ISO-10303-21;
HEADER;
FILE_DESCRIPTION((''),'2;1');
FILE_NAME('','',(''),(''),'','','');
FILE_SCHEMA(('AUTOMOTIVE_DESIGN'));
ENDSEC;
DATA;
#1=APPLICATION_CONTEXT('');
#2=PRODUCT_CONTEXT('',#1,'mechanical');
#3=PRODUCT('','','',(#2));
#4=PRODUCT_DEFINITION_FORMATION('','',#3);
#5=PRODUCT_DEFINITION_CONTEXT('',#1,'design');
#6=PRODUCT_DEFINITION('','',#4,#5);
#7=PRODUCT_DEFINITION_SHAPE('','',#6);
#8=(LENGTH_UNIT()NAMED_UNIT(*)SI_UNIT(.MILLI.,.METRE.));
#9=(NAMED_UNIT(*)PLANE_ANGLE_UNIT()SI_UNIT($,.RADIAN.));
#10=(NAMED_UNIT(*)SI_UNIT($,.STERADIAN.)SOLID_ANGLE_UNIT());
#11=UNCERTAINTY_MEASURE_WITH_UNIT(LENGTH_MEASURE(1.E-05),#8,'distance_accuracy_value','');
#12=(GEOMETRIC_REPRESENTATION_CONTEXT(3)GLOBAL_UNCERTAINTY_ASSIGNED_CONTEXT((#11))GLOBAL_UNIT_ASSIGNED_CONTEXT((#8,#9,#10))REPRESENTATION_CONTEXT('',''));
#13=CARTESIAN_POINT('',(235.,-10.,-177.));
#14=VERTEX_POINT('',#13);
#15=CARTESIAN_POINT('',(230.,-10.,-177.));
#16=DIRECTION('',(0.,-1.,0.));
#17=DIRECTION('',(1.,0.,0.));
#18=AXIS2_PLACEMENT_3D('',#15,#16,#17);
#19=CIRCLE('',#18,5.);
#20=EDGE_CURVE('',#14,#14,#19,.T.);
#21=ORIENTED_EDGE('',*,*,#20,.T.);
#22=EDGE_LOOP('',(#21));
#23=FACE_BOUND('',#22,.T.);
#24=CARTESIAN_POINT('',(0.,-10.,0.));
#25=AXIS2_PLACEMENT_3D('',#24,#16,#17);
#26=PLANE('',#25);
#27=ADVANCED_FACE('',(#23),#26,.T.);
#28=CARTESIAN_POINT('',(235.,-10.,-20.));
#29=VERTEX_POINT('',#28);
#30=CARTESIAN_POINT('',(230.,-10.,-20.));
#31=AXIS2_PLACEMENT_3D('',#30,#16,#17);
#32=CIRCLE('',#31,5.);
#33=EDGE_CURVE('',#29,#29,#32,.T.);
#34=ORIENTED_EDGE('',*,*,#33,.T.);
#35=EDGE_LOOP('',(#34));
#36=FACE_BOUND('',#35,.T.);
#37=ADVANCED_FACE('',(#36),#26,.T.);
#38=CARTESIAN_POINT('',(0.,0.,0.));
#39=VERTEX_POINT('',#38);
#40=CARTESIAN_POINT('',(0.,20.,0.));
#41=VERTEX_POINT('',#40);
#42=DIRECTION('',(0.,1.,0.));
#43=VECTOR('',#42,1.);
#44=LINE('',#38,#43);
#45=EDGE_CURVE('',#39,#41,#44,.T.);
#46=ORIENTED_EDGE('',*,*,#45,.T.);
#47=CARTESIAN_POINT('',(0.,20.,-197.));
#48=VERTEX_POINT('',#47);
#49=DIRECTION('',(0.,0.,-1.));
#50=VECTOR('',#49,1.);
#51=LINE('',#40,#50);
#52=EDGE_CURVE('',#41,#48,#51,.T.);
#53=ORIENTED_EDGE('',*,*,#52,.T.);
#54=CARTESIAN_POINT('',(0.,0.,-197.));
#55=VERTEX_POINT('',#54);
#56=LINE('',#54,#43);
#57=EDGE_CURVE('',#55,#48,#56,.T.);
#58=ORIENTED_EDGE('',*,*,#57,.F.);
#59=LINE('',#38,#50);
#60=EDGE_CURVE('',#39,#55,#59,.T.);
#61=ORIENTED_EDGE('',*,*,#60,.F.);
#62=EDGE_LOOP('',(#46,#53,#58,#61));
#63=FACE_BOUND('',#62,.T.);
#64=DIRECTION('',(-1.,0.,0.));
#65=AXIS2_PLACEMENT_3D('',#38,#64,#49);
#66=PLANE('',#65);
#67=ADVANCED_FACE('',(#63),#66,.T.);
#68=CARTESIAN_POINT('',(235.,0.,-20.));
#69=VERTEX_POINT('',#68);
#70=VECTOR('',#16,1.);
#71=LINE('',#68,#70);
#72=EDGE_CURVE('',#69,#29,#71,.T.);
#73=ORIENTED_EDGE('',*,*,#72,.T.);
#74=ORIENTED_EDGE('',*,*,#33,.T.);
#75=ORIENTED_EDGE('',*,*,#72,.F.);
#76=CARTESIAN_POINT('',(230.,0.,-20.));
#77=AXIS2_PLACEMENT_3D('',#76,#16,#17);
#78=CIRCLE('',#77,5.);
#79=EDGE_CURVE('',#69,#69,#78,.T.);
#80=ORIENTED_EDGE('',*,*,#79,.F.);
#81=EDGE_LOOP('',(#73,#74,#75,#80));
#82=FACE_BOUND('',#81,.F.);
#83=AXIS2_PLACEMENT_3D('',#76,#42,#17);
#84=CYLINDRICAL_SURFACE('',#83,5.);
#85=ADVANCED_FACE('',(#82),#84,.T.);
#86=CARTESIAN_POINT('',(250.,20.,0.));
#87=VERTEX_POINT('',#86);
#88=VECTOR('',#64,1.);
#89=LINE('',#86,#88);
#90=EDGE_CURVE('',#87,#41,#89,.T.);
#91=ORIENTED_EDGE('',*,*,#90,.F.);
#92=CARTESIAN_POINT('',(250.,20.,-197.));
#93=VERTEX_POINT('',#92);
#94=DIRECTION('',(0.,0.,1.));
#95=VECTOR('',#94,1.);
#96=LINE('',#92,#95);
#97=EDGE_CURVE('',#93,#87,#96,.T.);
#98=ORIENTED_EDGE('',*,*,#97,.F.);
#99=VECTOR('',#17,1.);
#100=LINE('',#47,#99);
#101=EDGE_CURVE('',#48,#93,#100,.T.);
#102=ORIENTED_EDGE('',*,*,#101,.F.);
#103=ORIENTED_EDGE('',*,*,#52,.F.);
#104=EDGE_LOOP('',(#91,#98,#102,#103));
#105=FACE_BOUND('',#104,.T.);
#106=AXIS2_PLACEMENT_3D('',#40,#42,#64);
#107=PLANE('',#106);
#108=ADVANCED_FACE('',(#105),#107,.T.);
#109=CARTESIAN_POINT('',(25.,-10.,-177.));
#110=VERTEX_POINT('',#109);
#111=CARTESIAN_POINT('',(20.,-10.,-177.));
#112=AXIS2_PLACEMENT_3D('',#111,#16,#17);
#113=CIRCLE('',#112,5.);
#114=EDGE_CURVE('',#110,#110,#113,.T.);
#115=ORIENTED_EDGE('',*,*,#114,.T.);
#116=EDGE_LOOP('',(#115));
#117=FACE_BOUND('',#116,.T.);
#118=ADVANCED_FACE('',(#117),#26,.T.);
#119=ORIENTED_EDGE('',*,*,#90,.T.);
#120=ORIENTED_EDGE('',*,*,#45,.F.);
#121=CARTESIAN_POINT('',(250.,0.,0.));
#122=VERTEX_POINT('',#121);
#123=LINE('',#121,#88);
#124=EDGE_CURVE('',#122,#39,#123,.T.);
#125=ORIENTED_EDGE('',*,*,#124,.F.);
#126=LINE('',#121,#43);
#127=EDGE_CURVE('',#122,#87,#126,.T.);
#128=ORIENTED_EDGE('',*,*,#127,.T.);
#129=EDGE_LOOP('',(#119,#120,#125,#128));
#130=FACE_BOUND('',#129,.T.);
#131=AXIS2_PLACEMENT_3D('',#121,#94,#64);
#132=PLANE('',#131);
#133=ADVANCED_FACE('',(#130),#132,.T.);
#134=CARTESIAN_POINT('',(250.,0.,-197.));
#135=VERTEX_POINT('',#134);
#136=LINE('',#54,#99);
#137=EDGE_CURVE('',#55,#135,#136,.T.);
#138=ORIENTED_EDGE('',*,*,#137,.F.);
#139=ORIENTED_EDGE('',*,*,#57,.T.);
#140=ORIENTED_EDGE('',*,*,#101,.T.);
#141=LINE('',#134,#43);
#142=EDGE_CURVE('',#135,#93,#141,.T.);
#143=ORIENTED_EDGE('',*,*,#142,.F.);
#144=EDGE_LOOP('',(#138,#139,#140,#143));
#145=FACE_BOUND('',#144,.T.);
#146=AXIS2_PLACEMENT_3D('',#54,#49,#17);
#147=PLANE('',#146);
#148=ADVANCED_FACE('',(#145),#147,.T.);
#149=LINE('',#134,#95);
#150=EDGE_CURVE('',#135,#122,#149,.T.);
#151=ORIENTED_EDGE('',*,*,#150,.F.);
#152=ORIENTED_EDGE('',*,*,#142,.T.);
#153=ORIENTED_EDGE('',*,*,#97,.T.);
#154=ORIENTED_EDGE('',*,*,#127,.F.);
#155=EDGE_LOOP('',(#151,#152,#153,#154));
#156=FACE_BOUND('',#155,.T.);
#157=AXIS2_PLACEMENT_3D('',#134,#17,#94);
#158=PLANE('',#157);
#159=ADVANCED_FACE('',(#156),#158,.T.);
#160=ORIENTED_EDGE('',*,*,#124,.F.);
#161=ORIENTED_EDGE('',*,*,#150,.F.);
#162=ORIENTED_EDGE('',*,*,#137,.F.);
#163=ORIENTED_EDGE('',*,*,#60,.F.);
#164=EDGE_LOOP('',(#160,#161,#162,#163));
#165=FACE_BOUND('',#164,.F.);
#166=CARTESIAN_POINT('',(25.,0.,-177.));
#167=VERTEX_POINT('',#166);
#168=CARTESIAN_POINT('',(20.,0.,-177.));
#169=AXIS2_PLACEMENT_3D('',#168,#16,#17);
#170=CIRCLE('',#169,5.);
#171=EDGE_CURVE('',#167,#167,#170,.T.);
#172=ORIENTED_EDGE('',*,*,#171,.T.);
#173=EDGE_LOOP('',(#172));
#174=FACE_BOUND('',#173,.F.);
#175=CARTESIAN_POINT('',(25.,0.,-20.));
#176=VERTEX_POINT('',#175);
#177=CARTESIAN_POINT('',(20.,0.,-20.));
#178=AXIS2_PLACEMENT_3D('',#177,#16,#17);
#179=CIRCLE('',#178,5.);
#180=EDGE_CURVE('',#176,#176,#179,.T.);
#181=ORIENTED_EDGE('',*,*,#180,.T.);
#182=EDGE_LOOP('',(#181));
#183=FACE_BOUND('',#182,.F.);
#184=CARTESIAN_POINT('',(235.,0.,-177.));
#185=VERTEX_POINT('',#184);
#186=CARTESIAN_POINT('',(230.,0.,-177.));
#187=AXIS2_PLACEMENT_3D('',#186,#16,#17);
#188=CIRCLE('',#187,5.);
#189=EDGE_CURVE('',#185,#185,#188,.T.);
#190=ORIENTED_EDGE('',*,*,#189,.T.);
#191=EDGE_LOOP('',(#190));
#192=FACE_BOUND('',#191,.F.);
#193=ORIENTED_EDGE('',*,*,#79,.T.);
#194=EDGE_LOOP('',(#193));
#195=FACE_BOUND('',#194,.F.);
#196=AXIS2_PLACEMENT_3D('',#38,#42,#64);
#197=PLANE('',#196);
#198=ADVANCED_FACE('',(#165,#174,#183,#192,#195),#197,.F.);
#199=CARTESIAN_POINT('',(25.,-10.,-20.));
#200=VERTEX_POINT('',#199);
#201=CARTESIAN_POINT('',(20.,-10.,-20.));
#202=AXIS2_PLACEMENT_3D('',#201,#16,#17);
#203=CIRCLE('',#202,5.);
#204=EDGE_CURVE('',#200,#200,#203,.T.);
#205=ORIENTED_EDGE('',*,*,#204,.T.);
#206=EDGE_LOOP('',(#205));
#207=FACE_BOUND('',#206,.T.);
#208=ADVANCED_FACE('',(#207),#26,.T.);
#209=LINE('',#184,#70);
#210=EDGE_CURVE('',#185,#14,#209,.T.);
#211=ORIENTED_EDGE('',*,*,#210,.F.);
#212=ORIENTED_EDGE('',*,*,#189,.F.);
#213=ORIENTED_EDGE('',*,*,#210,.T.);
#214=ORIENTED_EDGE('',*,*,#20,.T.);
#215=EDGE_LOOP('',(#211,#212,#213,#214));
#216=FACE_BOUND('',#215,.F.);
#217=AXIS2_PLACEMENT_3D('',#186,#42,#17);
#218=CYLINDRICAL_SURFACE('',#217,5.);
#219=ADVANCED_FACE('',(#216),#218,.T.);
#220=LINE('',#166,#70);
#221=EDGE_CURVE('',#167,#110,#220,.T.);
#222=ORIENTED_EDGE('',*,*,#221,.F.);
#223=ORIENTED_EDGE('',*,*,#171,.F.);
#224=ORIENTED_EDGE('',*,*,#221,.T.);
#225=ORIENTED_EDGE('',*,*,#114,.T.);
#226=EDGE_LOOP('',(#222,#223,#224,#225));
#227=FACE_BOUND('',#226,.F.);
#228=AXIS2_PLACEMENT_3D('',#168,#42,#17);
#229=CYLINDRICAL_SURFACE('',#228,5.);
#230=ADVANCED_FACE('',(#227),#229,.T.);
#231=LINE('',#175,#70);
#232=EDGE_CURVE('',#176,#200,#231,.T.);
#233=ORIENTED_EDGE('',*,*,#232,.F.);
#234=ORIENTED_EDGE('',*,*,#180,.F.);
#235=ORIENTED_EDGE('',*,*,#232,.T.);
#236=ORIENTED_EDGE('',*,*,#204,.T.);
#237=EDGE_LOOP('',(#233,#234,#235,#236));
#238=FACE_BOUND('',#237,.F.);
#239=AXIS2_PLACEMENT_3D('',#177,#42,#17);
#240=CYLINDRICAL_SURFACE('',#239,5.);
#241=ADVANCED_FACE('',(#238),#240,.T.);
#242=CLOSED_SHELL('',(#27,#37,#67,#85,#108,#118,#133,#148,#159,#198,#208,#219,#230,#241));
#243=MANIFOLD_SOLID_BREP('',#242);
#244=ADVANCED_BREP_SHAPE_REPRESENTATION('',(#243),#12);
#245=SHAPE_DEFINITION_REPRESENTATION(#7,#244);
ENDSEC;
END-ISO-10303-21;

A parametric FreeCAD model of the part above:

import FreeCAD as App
import Part
import Sketcher

V = App.Vector


def add_polygon(sketch, points):
    """Adds a closed chain of lines whose ends are joined by coincident constraints."""
    first, n = sketch.GeometryCount, len(points)
    for a, b in zip(points, points[1:] + points[:1]):
        sketch.addGeometry(Part.LineSegment(App.Vector(*a, 0), App.Vector(*b, 0)), False)
    for i in range(n):
        sketch.addConstraint(Sketcher.Constraint("Coincident", first + i, 2, first + (i + 1) % n, 1))

doc = App.newDocument("Part")
params = doc.addObject("Spreadsheet::Sheet", "Params")
for row, (alias, value) in enumerate([
    ("sketch1_width", "250 mm"),
    ("sketch1_height", "197 mm"),
    ("pad1_length", "20 mm"),
    ("sketch2_diameter", "10 mm"),
    ("pad2_length", "10 mm"),
], start=1):
    params.set(f"A{row}", alias)
    params.set(f"B{row}", "=" + value)
    params.setAlias(f"B{row}", alias)

body = doc.addObject("PartDesign::Body", "Body")

# Sketch on XZ plane
sketch1 = body.newObject("Sketcher::SketchObject", "Sketch")
sketch1.AttachmentSupport = (doc.getObject("XZ_Plane"), [""])
sketch1.MapMode = "FlatFace"
add_polygon(sketch1, [(250, -197), (0, -197), (0, 0), (250, 0)])  # lines 0-3
sketch1.addConstraint([
    Sketcher.Constraint("Horizontal", 0),
    Sketcher.Constraint("Vertical", 1),
    Sketcher.Constraint("Horizontal", 2),
    Sketcher.Constraint("Vertical", 3),
    Sketcher.Constraint("Coincident", 1, 2, -1, 1),
    Sketcher.Constraint("DistanceX", 0, 2, 0, 1, 250.0),
    Sketcher.Constraint("DistanceY", 1, 1, 1, 2, 197.0),
])
sketch1.setExpression("Constraints[9]", "Params.sketch1_width")
sketch1.setExpression("Constraints[10]", "Params.sketch1_height")
pad1 = body.newObject("PartDesign::Pad", "Pad")
pad1.Profile = sketch1
pad1.setExpression("Length", "Params.pad1_length")
pad1.Reversed = True

# Sketch on XZ plane
sketch2 = body.newObject("Sketcher::SketchObject", "Sketch001")
sketch2.AttachmentSupport = (doc.getObject("XZ_Plane"), [""])
sketch2.MapMode = "FlatFace"
sketch2.addGeometry([
    Part.Circle(V(20, -20, 0), V(0, 0, 1), 5),
    Part.Circle(V(20, -177, 0), V(0, 0, 1), 5),
    Part.Circle(V(230, -20, 0), V(0, 0, 1), 5),
    Part.Circle(V(230, -177, 0), V(0, 0, 1), 5),
], False)
sketch2.addConstraint([
    Sketcher.Constraint("Equal", 0, 1),
    Sketcher.Constraint("Equal", 1, 2),
    Sketcher.Constraint("Equal", 2, 3),
    Sketcher.Constraint("Horizontal", 0, 3, 2, 3),
    Sketcher.Constraint("Horizontal", 1, 3, 3, 3),
    Sketcher.Constraint("Vertical", 0, 3, 1, 3),
    Sketcher.Constraint("Vertical", 2, 3, 3, 3),
    Sketcher.Constraint("Diameter", 0, 10.0),
    Sketcher.Constraint("DistanceX", -1, 1, 0, 3, 20.0),
    Sketcher.Constraint("DistanceY", 0, 3, -1, 1, 20.0),
    Sketcher.Constraint("DistanceY", 1, 3, -1, 1, 177.0),
    Sketcher.Constraint("DistanceX", -1, 1, 2, 3, 230.0),
])
sketch2.setExpression("Constraints[7]", "Params.sketch2_diameter")
pad2 = body.newObject("PartDesign::Pad", "Pad001")
pad2.Profile = sketch2
pad2.setExpression("Length", "Params.pad2_length")

doc.recompute()
